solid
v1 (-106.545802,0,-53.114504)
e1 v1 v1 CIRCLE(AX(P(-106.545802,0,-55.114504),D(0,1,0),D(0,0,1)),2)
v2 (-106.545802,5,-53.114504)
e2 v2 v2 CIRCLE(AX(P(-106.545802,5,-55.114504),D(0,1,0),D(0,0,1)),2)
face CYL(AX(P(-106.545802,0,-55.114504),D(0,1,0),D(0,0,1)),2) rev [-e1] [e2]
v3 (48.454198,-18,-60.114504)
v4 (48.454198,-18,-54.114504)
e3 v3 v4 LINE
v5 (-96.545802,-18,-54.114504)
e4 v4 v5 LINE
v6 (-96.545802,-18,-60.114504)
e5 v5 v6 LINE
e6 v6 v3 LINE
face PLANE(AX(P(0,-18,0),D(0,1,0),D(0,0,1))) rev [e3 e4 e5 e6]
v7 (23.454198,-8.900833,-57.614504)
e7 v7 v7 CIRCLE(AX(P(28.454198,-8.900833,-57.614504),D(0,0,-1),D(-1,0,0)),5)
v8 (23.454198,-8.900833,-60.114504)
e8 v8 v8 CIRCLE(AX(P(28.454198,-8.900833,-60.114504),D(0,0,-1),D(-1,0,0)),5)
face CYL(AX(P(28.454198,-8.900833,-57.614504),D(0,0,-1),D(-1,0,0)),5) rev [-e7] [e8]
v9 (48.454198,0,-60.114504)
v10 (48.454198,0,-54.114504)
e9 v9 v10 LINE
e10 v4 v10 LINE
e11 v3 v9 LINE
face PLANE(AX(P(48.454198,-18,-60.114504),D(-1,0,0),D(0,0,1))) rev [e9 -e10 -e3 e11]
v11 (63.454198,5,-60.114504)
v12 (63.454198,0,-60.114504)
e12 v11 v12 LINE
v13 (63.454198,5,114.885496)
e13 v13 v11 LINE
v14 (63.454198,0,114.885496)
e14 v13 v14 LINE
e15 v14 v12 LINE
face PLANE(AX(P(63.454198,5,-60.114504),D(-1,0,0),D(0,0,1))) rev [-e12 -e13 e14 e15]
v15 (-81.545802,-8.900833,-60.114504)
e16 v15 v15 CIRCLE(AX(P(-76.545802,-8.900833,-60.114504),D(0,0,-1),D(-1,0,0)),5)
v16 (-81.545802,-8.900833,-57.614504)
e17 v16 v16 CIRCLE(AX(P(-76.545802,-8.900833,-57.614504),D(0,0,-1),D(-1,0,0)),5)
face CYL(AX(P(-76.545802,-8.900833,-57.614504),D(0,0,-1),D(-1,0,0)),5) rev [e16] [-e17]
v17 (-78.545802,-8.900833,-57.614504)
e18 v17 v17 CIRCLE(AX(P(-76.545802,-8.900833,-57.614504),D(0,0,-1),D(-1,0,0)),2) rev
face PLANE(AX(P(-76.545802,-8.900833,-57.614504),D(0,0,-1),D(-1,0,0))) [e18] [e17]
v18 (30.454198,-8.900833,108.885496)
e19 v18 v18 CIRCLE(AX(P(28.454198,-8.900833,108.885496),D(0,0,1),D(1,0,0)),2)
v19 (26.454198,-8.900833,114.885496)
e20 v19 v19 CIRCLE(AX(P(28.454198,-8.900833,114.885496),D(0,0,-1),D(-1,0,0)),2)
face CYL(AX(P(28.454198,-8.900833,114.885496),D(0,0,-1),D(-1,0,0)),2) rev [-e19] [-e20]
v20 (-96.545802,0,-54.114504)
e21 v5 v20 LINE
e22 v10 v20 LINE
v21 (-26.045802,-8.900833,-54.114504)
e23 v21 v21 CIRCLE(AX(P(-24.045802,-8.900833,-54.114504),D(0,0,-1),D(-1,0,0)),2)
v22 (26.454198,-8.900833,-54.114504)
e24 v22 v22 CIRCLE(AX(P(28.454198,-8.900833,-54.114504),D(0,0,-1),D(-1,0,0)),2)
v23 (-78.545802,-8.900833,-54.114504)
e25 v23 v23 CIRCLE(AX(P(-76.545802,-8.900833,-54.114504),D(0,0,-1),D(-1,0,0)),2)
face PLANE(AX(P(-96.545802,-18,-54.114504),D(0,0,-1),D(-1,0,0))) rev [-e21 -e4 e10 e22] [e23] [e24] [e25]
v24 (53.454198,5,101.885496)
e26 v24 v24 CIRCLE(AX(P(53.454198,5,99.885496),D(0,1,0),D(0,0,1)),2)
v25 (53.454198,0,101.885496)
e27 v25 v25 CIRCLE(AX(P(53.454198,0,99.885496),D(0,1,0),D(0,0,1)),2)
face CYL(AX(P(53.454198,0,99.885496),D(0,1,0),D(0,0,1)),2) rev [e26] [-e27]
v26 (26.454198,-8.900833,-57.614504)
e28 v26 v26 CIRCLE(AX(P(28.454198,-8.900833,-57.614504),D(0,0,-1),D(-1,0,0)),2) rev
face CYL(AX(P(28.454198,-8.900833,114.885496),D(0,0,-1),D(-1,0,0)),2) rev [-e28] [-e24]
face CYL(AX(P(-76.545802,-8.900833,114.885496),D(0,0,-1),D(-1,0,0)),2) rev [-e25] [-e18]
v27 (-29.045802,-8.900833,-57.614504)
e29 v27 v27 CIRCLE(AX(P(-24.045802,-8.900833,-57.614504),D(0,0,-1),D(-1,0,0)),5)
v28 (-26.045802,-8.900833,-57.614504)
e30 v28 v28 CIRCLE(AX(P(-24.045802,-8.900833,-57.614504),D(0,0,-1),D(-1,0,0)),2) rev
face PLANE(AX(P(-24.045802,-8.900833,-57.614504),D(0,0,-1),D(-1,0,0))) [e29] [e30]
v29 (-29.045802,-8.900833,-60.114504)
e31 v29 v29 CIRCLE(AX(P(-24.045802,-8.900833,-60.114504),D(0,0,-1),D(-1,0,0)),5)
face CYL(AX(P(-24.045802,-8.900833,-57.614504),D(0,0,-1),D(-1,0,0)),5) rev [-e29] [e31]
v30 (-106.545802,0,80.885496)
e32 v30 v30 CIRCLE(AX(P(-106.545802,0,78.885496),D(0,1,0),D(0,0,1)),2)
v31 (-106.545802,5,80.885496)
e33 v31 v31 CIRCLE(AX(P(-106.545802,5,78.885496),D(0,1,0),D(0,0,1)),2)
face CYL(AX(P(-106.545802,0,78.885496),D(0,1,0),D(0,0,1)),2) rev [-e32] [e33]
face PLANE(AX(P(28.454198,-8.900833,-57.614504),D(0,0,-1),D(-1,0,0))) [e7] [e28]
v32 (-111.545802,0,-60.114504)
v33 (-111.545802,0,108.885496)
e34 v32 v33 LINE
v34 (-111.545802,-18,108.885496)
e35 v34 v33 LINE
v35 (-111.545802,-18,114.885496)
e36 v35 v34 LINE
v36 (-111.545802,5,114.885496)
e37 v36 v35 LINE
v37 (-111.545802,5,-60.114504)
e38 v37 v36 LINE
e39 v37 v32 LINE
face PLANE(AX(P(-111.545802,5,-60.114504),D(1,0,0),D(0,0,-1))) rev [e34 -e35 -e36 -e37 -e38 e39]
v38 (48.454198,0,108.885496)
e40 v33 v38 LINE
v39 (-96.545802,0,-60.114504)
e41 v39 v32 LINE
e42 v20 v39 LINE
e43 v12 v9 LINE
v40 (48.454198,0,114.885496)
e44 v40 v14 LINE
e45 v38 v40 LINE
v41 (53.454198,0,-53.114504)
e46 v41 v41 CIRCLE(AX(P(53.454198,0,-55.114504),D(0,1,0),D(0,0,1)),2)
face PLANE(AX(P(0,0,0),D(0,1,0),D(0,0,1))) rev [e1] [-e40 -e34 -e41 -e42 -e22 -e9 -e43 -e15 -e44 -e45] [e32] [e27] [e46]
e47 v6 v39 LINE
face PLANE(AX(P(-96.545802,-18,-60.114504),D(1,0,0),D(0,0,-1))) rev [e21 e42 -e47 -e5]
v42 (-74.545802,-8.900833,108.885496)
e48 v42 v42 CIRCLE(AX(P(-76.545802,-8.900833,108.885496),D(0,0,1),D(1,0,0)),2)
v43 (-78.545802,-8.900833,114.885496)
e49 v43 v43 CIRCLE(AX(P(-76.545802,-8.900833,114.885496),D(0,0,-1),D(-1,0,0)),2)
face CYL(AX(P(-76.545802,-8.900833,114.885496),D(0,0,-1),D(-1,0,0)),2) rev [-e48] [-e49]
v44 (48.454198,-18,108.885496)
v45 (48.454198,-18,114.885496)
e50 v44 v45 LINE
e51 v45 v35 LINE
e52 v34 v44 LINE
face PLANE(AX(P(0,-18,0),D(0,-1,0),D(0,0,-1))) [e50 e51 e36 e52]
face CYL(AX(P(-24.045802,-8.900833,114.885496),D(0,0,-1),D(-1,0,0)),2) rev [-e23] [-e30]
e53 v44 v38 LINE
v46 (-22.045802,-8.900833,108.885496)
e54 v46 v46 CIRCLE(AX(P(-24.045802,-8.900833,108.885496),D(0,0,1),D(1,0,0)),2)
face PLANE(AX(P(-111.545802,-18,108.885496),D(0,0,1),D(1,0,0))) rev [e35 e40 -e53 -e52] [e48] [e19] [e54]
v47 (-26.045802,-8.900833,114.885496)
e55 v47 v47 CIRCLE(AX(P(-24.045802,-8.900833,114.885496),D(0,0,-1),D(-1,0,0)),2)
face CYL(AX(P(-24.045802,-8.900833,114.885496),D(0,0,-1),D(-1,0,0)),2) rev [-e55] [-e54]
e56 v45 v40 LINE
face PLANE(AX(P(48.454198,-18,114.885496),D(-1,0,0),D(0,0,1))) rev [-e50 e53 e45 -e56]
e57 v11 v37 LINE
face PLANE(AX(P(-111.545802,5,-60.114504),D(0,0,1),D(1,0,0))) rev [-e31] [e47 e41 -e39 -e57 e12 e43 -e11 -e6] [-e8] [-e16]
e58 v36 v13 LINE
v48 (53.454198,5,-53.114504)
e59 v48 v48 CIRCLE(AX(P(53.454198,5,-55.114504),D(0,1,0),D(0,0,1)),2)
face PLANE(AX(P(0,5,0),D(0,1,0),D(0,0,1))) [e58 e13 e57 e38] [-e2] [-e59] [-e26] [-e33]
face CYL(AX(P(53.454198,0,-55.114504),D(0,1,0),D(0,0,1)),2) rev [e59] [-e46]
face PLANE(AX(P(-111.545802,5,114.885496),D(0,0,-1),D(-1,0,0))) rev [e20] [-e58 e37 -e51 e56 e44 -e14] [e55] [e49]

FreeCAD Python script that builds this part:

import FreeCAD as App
import Part
import Sketcher
from FreeCAD import Vector
Q = App.Units.Quantity


def add_polygon(sketch, points):
    """Adds a closed chain of lines whose ends are joined by coincident constraints."""
    first, n = sketch.GeometryCount, len(points)
    for a, b in zip(points, points[1:] + points[:1]):
        sketch.addGeometry(Part.LineSegment(App.Vector(*a, 0), App.Vector(*b, 0)), False)
    for i in range(n):
        sketch.addConstraint(Sketcher.Constraint("Coincident", first + i, 2, first + (i + 1) % n, 1))

doc = App.newDocument("Part")
params = doc.addObject("Spreadsheet::Sheet", "Params")
for row, (alias, value) in enumerate([
    ("sketch1_width", "175 mm"),
    ("pad1_length", "5 mm"),
    ("sketch2_diameter", "4 mm"),
    ("pocket1_length", "5 mm"),
    ("sketch3_width", "160 mm"),
    ("sketch3_width2", "145 mm"),
    ("sketch3_height", "6 mm"),
    ("pad2_length", "18 mm"),
    ("sketch4_diameter", "4 mm"),
    ("sketch5_diameter", "10 mm"),
    ("pocket3_length", "2.5 mm"),
], start=1):
    params.set(f"A{row}", alias)
    params.set(f"B{row}", "=" + value)
    params.setAlias(f"B{row}", alias)

body = doc.addObject("PartDesign::Body", "Body")

# Sketch on XZ plane
sketch1 = body.newObject("Sketcher::SketchObject", "Sketch")
sketch1.AttachmentSupport = (doc.getObject("XZ_Plane"), [""])
sketch1.MapMode = "FlatFace"
add_polygon(sketch1, [(-112, -60), (-112, 115), (63, 115), (63, -60)])  # lines 0-3
sketch1.addConstraint([
    Sketcher.Constraint("Vertical", 0),
    Sketcher.Constraint("Horizontal", 1),
    Sketcher.Constraint("Vertical", 2),
    Sketcher.Constraint("Horizontal", 3),
    Sketcher.Constraint("Equal", 3, 0),
    Sketcher.Constraint("DistanceX", 1, 1, 1, 2, Q("175 mm")),
    Sketcher.Constraint("DistanceX", 0, 2, -1, 1, Q("111.545802 mm")),
    Sketcher.Constraint("DistanceY", -1, 1, 0, 2, Q("114.885496 mm")),
])
sketch1.setExpression("Constraints[9]", "Params.sketch1_width")
pad1 = body.newObject("PartDesign::Pad", "Pad")
pad1.Profile = sketch1
pad1.setExpression("Length", "Params.pad1_length")
pad1.Reversed = True

# Sketch on XZ plane
sketch2 = body.newObject("Sketcher::SketchObject", "Sketch001")
sketch2.AttachmentSupport = (doc.getObject("XZ_Plane"), [""])
sketch2.MapMode = "FlatFace"
sketch2.AttachmentOffset = App.Placement(Vector(0, 0, -5), App.Rotation())
sketch2.addGeometry([
    Part.Circle(Vector(-106.5, -55.1, 0), Vector(0, 0, 1), 2),
    Part.Circle(Vector(53.5, -55.1, 0), Vector(0, 0, 1), 2),
    Part.Circle(Vector(53.5, 99.9, 0), Vector(0, 0, 1), 2),
    Part.Circle(Vector(-106.5, 78.9, 0), Vector(0, 0, 1), 2),
], False)
sketch2.addConstraint([
    Sketcher.Constraint("Equal", 0, 1),
    Sketcher.Constraint("Equal", 1, 2),
    Sketcher.Constraint("Equal", 2, 3),
    Sketcher.Constraint("Horizontal", 0, 3, 1, 3),
    Sketcher.Constraint("Vertical", 1, 3, 2, 3),
    Sketcher.Constraint("Vertical", 0, 3, 3, 3),
    Sketcher.Constraint("Diameter", 0, Q("4 mm")),
    Sketcher.Constraint("DistanceX", 0, 3, 1, 3, Q("160 mm")),
    Sketcher.Constraint("DistanceY", 1, 3, 2, 3, Q("155 mm")),
    Sketcher.Constraint("DistanceY", 0, 3, 3, 3, Q("134 mm")),
    Sketcher.Constraint("DistanceX", 0, 3, -1, 1, Q("106.545802 mm")),
    Sketcher.Constraint("DistanceY", 0, 3, -1, 1, Q("55.114504 mm")),
])
sketch2.setExpression("Constraints[6]", "Params.sketch2_diameter")
pocket1 = body.newObject("PartDesign::Pocket", "Pocket")
pocket1.Profile = sketch2
pocket1.setExpression("Length", "Params.pocket1_length")
pocket1.Reversed = True

# Sketch on XZ plane
sketch3 = body.newObject("Sketcher::SketchObject", "Sketch002")
sketch3.AttachmentSupport = (doc.getObject("XZ_Plane"), [""])
sketch3.MapMode = "FlatFace"
add_polygon(sketch3, [(-112, 115), (-112, 109), (48, 109), (48, 115)])  # lines 0-3
add_polygon(sketch3, [(-97, -54), (-97, -60), (48, -60), (48, -54)])  # lines 4-7
sketch3.addConstraint([
    Sketcher.Constraint("Vertical", 0),
    Sketcher.Constraint("Horizontal", 1),
    Sketcher.Constraint("Vertical", 2),
    Sketcher.Constraint("Horizontal", 3),
    Sketcher.Constraint("Vertical", 4),
    Sketcher.Constraint("Horizontal", 5),
    Sketcher.Constraint("Vertical", 6),
    Sketcher.Constraint("Horizontal", 7),
    Sketcher.Constraint("Vertical", 2, 2, 5, 2),
    Sketcher.Constraint("Equal", 2, 4),
    Sketcher.Constraint("DistanceX", 1, 1, 1, 2, Q("160 mm")),
    Sketcher.Constraint("DistanceX", 5, 1, 5, 2, Q("145 mm")),
    Sketcher.Constraint("DistanceY", 0, 2, 0, 1, Q("6 mm")),
    Sketcher.Constraint("DistanceY", 4, 2, 0, 2, Q("169 mm")),
    Sketcher.Constraint("DistanceX", 0, 2, -1, 1, Q("111.545802 mm")),
    Sketcher.Constraint("DistanceY", -1, 1, 0, 2, Q("108.885496 mm")),
])
sketch3.setExpression("Constraints[18]", "Params.sketch3_width")
sketch3.setExpression("Constraints[19]", "Params.sketch3_width2")
sketch3.setExpression("Constraints[20]", "Params.sketch3_height")
pad2 = body.newObject("PartDesign::Pad", "Pad001")
pad2.Profile = sketch3
pad2.setExpression("Length", "Params.pad2_length")

# Sketch on XY plane
sketch4 = body.newObject("Sketcher::SketchObject", "Sketch003")
sketch4.AttachmentSupport = (doc.getObject("XY_Plane"), [""])
sketch4.MapMode = "FlatFace"
sketch4.AttachmentOffset = App.Placement(Vector(0, 0, -60.114504), App.Rotation())
sketch4.addGeometry([
    Part.Circle(Vector(28.5, -8.9, 0), Vector(0, 0, 1), 2),
    Part.Circle(Vector(-24, -8.9, 0), Vector(0, 0, 1), 2),
    Part.Circle(Vector(-76.5, -8.9, 0), Vector(0, 0, 1), 2),
], False)
sketch4.addConstraint([
    Sketcher.Constraint("Equal", 0, 1),
    Sketcher.Constraint("Equal", 1, 2),
    Sketcher.Constraint("Horizontal", 0, 3, 1, 3),
    Sketcher.Constraint("Horizontal", 1, 3, 2, 3),
    Sketcher.Constraint("Diameter", 0, Q("4 mm")),
    Sketcher.Constraint("DistanceX", 2, 3, 0, 3, Q("105 mm")),
    Sketcher.Constraint("DistanceX", 1, 3, 0, 3, Q("52.5 mm")),
    Sketcher.Constraint("DistanceX", -1, 1, 0, 3, Q("28.454198 mm")),
    Sketcher.Constraint("DistanceY", 0, 3, -1, 1, Q("8.900833 mm")),
])
sketch4.setExpression("Constraints[4]", "Params.sketch4_diameter")
pocket2 = body.newObject("PartDesign::Pocket", "Pocket001")
pocket2.Profile = sketch4
pocket2.Type = "ThroughAll"
pocket2.Midplane = True

# Sketch on XY plane
sketch5 = body.newObject("Sketcher::SketchObject", "Sketch004")
sketch5.AttachmentSupport = (doc.getObject("XY_Plane"), [""])
sketch5.MapMode = "FlatFace"
sketch5.AttachmentOffset = App.Placement(Vector(0, 0, -60.114504), App.Rotation())
sketch5.addGeometry([
    Part.Circle(Vector(28, -9, 0), Vector(0, 0, 1), 5),
    Part.Circle(Vector(-24, -9, 0), Vector(0, 0, 1), 5),
    Part.Circle(Vector(-77, -9, 0), Vector(0, 0, 1), 5),
], False)
sketch5.addConstraint([
    Sketcher.Constraint("Equal", 0, 1),
    Sketcher.Constraint("Equal", 1, 2),
    Sketcher.Constraint("Horizontal", 0, 3, 1, 3),
    Sketcher.Constraint("Horizontal", 1, 3, 2, 3),
    Sketcher.Constraint("Diameter", 0, Q("10 mm")),
    Sketcher.Constraint("DistanceX", 2, 3, 0, 3, Q("105 mm")),
    Sketcher.Constraint("DistanceX", 1, 3, 0, 3, Q("52.5 mm")),
    Sketcher.Constraint("DistanceX", -1, 1, 0, 3, Q("28.454198 mm")),
    Sketcher.Constraint("DistanceY", 0, 3, -1, 1, Q("8.900833 mm")),
])
sketch5.setExpression("Constraints[4]", "Params.sketch5_diameter")
pocket3 = body.newObject("PartDesign::Pocket", "Pocket002")
pocket3.Profile = sketch5
pocket3.setExpression("Length", "Params.pocket3_length")
pocket3.Reversed = True

doc.recompute()
